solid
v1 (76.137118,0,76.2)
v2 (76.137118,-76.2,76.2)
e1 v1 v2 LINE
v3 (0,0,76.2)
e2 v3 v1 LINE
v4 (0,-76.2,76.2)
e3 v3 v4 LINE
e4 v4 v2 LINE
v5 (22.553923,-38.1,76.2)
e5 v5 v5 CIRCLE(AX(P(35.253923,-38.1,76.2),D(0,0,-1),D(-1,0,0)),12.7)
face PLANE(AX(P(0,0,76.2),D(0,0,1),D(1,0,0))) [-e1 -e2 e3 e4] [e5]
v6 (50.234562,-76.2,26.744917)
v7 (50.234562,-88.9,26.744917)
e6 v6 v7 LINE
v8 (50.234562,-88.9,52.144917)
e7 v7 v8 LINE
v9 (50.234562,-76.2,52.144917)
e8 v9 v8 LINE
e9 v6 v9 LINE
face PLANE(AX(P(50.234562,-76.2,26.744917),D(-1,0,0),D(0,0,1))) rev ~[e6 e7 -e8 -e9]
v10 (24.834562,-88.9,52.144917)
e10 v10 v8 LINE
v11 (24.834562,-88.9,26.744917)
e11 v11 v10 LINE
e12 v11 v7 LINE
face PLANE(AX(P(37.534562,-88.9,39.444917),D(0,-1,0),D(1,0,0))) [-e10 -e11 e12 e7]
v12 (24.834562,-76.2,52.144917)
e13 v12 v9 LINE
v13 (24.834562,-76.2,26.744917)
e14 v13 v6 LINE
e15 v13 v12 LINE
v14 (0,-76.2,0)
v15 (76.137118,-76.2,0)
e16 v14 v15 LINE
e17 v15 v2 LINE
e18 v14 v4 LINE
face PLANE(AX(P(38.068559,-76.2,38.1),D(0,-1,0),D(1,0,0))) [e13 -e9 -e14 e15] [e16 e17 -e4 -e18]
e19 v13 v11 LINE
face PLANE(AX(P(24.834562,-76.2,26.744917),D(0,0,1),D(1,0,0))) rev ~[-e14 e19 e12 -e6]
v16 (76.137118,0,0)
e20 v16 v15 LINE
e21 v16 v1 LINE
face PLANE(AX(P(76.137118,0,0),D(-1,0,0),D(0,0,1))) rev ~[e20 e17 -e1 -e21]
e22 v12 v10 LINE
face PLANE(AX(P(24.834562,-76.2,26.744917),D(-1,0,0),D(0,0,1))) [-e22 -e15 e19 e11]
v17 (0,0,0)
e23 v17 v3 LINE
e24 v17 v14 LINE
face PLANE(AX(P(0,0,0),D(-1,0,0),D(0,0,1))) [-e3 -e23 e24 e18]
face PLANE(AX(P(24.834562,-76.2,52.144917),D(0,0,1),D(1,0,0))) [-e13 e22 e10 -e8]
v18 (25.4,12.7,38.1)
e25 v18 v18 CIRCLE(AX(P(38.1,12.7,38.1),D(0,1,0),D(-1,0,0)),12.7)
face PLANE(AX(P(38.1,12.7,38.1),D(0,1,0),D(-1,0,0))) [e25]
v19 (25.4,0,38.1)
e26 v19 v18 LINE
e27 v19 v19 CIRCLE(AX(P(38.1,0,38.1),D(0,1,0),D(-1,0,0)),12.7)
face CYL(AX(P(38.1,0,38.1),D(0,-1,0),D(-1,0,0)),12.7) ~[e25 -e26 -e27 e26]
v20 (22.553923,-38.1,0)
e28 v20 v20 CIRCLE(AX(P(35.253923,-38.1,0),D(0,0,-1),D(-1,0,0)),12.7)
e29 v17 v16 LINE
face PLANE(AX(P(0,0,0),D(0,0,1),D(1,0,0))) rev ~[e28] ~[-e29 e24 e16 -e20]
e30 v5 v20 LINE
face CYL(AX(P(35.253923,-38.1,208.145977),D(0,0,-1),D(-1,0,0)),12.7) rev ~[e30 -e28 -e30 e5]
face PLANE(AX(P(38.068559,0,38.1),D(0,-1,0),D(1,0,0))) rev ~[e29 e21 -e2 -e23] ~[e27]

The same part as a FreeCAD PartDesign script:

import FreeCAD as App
import Part
import Sketcher
from FreeCAD import Vector
Q = App.Units.Quantity


def add_polygon(sketch, points):
    """Adds a closed chain of lines whose ends are joined by coincident constraints."""
    first, n = sketch.GeometryCount, len(points)
    for a, b in zip(points, points[1:] + points[:1]):
        sketch.addGeometry(Part.LineSegment(App.Vector(*a, 0), App.Vector(*b, 0)), False)
    for i in range(n):
        sketch.addConstraint(Sketcher.Constraint("Coincident", first + i, 2, first + (i + 1) % n, 1))

doc = App.newDocument("Part")
body = doc.addObject("PartDesign::Body", "Body")

# Sketch on XZ plane
sketch1 = body.newObject("Sketcher::SketchObject", "Sketch")
sketch1.AttachmentSupport = (doc.getObject("XZ_Plane"), [""])
sketch1.MapMode = "FlatFace"
add_polygon(sketch1, [(0, 76), (0, 0), (76, 0), (76, 76)])  # lines 0-3
sketch1.addConstraint(Sketcher.Constraint("Vertical", 0))
sketch1.addConstraint(Sketcher.Constraint("Horizontal", 1))
sketch1.addConstraint(Sketcher.Constraint("Vertical", 2))
sketch1.addConstraint(Sketcher.Constraint("Horizontal", 3))
sketch1.addConstraint(Sketcher.Constraint("Coincident", 0, 2, -1, 1))
sketch1.addConstraint(Sketcher.Constraint("DistanceY", 0, 2, 0, 1, Q("3 in")))
sketch1.addConstraint(Sketcher.Constraint("DistanceX", 1, 1, 1, 2, Q("76.137118 mm")))
pad1 = body.newObject("PartDesign::Pad", "Pad")
pad1.Profile = sketch1
pad1.Length = Q("3 in")

# Sketch on XY plane
sketch2 = body.newObject("Sketcher::SketchObject", "Sketch001")
sketch2.AttachmentSupport = (doc.getObject("XY_Plane"), [""])
sketch2.MapMode = "FlatFace"
sketch2.AttachmentOffset = App.Placement(Vector(0, 0, 3 * 25.4), App.Rotation())
sketch2.addGeometry(Part.Circle(Vector(35, -38, 0), Vector(0, 0, 1), 13), False)
sketch2.addConstraint(Sketcher.Constraint("Diameter", 0, Q("1 in")))
sketch2.addConstraint(Sketcher.Constraint("DistanceY", 0, 3, -1, 1, Q("1.5 in")))
sketch2.addConstraint(Sketcher.Constraint("DistanceX", -1, 1, 0, 3, Q("35.253923 mm")))
doc.recompute()
hole = body.newObject("PartDesign::Hole", "Hole")
hole.Profile = sketch2
hole.ThreadType = "None"
hole.Diameter = Q("1 in")
hole.DepthType = "ThroughAll"

# Sketch on XZ plane
sketch3 = body.newObject("Sketcher::SketchObject", "Sketch002")
sketch3.AttachmentSupport = (doc.getObject("XZ_Plane"), [""])
sketch3.MapMode = "FlatFace"
sketch3.AttachmentOffset = App.Placement(Vector(0, 0, 3 * 25.4), App.Rotation())
add_polygon(sketch3, [(25, 52), (25, 27), (50, 27), (50, 52)])  # lines 0-3
sketch3.addConstraint(Sketcher.Constraint("Vertical", 0))
sketch3.addConstraint(Sketcher.Constraint("Horizontal", 1))
sketch3.addConstraint(Sketcher.Constraint("Vertical", 2))
sketch3.addConstraint(Sketcher.Constraint("Horizontal", 3))
sketch3.addConstraint(Sketcher.Constraint("Equal", 3, 0))
sketch3.addConstraint(Sketcher.Constraint("DistanceX", 1, 1, 1, 2, Q("1 in")))
sketch3.addConstraint(Sketcher.Constraint("DistanceX", -1, 1, 0, 2, Q("24.834562 mm")))
sketch3.addConstraint(Sketcher.Constraint("DistanceY", -1, 1, 0, 2, Q("26.744917 mm")))
pad2 = body.newObject("PartDesign::Pad", "Pad001")
pad2.Profile = sketch3
pad2.Length = Q("0.5 in")

# Sketch on XZ plane
sketch4 = body.newObject("Sketcher::SketchObject", "Sketch003")
sketch4.AttachmentSupport = (doc.getObject("XZ_Plane"), [""])
sketch4.MapMode = "FlatFace"
sketch4.addGeometry(Part.Circle(Vector(38, 38, 0), Vector(0, 0, 1), 13), False)
sketch4.addConstraint(Sketcher.Constraint("Diameter", 0, Q("1 in")))
sketch4.addConstraint(Sketcher.Constraint("DistanceX", -1, 1, 0, 3, Q("1.5 in")))
sketch4.addConstraint(Sketcher.Constraint("DistanceY", -1, 1, 0, 3, Q("1.5 in")))
pad3 = body.newObject("PartDesign::Pad", "Pad002")
pad3.Profile = sketch4
pad3.Length = Q("0.5 in")
pad3.Reversed = True

doc.recompute()
